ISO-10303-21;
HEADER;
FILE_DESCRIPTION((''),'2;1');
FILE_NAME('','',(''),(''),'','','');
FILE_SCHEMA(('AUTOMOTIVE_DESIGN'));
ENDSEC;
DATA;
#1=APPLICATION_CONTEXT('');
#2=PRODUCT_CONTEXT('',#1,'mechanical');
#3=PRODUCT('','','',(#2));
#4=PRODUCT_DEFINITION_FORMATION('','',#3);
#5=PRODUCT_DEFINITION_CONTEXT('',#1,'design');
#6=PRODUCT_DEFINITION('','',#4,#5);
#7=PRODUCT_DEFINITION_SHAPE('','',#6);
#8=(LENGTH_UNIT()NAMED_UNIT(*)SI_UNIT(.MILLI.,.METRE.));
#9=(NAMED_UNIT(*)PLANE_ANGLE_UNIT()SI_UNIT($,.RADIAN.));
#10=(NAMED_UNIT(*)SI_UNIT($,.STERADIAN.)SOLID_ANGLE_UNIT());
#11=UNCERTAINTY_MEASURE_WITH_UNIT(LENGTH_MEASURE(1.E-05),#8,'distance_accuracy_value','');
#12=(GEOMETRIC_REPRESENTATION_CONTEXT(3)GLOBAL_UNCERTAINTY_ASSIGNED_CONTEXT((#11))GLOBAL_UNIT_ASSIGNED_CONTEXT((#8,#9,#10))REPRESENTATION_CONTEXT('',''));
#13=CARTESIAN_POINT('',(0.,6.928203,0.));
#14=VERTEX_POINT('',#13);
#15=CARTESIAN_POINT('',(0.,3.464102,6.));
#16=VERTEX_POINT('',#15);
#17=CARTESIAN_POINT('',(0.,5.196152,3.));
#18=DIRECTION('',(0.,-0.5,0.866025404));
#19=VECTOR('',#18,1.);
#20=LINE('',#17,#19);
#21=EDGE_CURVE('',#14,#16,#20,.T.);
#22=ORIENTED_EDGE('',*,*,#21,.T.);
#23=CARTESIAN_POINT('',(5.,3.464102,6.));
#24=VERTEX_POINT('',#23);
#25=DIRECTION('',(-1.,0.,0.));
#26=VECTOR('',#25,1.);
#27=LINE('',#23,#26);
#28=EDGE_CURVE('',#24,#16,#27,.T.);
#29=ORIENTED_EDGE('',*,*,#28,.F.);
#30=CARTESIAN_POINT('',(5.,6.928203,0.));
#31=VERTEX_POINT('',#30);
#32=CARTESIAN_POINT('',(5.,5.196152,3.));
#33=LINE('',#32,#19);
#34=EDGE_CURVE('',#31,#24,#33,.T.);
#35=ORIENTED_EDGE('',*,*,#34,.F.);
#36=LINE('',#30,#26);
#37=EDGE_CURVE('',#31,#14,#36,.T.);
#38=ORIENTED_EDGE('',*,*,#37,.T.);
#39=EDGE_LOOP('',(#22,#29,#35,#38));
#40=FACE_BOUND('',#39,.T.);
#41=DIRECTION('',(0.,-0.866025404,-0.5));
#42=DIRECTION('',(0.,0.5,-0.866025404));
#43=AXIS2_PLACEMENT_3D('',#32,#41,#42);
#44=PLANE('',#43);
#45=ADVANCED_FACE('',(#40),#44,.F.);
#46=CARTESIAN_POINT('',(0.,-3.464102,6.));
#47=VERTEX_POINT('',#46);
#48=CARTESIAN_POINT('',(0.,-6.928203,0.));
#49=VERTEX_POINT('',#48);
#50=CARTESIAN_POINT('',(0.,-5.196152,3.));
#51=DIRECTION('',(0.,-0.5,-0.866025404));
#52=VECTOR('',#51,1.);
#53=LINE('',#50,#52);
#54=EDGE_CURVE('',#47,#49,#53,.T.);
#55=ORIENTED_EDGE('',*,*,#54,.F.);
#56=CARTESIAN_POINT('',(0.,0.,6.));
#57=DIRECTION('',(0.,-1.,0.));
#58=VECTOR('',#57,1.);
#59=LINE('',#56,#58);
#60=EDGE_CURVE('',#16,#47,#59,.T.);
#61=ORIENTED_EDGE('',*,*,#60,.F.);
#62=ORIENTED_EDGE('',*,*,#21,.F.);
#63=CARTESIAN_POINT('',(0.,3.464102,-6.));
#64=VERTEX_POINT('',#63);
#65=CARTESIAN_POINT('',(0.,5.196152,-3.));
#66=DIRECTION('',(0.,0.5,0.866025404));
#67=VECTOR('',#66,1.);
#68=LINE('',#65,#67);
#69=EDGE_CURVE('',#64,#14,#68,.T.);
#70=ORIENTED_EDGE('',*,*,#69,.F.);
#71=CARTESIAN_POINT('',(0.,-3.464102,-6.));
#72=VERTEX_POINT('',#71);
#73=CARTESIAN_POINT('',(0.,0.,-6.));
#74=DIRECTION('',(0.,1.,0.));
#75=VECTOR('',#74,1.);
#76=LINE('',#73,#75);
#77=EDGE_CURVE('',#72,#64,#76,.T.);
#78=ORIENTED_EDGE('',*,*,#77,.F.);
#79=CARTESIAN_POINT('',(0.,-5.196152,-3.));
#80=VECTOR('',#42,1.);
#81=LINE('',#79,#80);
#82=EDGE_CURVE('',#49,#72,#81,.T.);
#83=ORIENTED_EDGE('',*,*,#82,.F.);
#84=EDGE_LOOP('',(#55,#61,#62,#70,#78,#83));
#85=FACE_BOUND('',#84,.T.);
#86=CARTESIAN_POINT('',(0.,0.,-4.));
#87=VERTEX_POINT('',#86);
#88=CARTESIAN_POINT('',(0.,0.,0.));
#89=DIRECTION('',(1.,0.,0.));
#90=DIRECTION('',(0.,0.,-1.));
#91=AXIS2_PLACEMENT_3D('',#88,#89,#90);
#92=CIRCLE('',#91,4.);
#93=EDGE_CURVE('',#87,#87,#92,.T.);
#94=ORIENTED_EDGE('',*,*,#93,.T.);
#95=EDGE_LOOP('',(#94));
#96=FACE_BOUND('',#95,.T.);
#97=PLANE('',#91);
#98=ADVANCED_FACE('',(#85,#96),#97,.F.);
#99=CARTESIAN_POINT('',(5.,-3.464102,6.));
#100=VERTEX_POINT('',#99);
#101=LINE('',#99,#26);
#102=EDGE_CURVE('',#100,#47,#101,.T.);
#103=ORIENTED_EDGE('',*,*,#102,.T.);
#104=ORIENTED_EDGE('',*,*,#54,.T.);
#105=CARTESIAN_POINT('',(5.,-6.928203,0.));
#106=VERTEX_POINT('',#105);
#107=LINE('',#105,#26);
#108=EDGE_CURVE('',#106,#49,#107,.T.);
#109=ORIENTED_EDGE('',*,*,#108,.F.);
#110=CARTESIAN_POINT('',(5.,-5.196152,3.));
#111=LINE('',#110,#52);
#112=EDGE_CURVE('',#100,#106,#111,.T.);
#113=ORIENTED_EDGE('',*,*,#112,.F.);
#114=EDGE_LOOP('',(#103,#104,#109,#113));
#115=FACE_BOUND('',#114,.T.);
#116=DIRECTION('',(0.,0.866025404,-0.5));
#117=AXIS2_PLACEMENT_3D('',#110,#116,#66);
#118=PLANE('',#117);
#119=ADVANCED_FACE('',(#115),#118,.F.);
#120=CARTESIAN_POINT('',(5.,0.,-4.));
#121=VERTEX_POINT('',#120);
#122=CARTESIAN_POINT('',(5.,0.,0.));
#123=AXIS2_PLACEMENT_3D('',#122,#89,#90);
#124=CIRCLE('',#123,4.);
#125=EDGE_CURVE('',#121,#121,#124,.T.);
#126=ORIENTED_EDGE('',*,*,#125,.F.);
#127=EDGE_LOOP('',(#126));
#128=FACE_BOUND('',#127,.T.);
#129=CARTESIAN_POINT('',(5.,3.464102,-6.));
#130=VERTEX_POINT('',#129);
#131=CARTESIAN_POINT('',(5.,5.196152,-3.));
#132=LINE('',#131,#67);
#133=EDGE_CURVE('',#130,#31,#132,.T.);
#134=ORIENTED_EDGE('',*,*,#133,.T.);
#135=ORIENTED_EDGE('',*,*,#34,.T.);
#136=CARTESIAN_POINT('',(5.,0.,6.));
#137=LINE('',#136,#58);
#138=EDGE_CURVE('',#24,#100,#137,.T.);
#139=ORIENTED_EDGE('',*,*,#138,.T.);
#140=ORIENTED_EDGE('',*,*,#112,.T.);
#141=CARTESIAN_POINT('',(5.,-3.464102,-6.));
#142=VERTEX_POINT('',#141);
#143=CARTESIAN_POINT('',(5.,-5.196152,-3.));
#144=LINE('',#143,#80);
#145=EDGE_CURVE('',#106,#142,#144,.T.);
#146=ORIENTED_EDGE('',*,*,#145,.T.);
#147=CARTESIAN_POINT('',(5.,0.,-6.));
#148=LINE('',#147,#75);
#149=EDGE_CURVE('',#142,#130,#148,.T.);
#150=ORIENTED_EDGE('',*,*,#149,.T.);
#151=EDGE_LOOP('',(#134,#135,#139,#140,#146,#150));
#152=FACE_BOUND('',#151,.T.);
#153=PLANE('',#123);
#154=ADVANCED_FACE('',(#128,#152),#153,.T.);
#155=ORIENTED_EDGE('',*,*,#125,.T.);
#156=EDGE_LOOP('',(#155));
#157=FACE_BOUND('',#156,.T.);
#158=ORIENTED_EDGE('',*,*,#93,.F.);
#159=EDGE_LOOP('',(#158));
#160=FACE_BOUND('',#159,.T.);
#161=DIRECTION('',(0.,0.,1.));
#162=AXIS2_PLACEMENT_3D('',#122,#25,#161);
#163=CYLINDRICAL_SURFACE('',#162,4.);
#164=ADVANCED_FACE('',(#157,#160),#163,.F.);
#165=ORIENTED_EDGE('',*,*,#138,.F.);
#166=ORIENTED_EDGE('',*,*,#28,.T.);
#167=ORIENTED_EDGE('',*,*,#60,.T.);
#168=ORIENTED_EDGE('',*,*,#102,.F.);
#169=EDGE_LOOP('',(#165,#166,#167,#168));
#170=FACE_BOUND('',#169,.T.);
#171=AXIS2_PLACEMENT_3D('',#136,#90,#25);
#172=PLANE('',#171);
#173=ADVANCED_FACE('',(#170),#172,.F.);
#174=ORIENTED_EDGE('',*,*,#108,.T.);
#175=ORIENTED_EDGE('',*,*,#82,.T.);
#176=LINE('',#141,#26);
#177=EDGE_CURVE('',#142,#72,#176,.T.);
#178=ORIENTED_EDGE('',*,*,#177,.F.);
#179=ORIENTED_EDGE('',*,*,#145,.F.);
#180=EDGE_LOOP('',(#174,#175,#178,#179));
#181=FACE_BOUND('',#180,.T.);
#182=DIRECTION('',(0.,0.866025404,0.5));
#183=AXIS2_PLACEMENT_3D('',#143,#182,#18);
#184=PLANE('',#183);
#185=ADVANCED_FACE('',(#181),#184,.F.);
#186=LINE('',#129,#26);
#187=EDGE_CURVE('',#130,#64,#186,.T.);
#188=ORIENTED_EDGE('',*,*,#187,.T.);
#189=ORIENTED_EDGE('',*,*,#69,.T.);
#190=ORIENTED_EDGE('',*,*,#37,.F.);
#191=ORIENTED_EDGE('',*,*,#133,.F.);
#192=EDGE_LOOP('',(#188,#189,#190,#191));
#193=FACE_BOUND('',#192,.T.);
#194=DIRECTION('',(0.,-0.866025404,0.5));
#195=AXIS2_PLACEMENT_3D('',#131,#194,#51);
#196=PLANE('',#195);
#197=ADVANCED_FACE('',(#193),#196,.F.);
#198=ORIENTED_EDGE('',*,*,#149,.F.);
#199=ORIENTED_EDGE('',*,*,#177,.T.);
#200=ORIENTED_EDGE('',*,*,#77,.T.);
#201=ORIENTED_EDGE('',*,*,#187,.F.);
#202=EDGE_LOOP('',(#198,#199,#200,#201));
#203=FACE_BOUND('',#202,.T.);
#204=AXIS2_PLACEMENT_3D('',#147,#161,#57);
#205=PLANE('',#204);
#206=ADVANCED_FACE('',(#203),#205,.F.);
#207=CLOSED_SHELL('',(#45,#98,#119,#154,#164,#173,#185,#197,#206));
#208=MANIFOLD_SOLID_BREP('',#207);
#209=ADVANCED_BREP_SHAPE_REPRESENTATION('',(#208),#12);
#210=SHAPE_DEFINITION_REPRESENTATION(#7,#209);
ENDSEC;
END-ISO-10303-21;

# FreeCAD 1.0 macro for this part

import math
import FreeCAD as App
import Part
import Sketcher
Q = App.Units.Quantity


def add_polygon(sketch, points):
    """Adds a closed chain of lines whose ends are joined by coincident constraints."""
    first, n = sketch.GeometryCount, len(points)
    for a, b in zip(points, points[1:] + points[:1]):
        sketch.addGeometry(Part.LineSegment(App.Vector(*a, 0), App.Vector(*b, 0)), False)
    for i in range(n):
        sketch.addConstraint(Sketcher.Constraint("Coincident", first + i, 2, first + (i + 1) % n, 1))

doc = App.newDocument("Part")
body = doc.addObject("PartDesign::Body", "Body")

sketch1 = body.newObject("Sketcher::SketchObject", "Sketch")
sketch1.AttachmentSupport = (doc.getObject("YZ_Plane"), [""])
sketch1.MapMode = "FlatFace"
add_polygon(sketch1, [(-3.5, -6), (3.5, -6), (6.9, 0), (3.5, 6), (-3.5, 6), (-6.9, 0)])
sketch1.addGeometry(Part.ArcOfCircle(Part.Circle(App.Vector(0, 0, 0), App.Vector(0, 0, 1), 4), math.radians(150), math.radians(210)), False)
sketch1.addGeometry(Part.ArcOfCircle(Part.Circle(App.Vector(0, 0, 0), App.Vector(0, 0, 1), 4), math.radians(90), math.radians(150)), False)
sketch1.addGeometry(Part.ArcOfCircle(Part.Circle(App.Vector(0, 0, 0), App.Vector(0, 0, 1), 4), math.radians(30), math.radians(90)), False)
sketch1.addGeometry(Part.ArcOfCircle(Part.Circle(App.Vector(0, 0, 0), App.Vector(0, 0, 1), 4), math.radians(-30), math.radians(30)), False)
sketch1.addGeometry(Part.ArcOfCircle(Part.Circle(App.Vector(0, 0, 0), App.Vector(0, 0, 1), 4), math.radians(-90), math.radians(-30)), False)
sketch1.addGeometry(Part.ArcOfCircle(Part.Circle(App.Vector(0, 0, 0), App.Vector(0, 0, 1), 4), math.radians(-150), math.radians(-90)), False)
sketch1.addConstraint([
    Sketcher.Constraint("Tangent", 6, 1, 7, 2),
    Sketcher.Constraint("Tangent", 7, 1, 8, 2),
    Sketcher.Constraint("Tangent", 8, 1, 9, 2),
    Sketcher.Constraint("Tangent", 9, 1, 10, 2),
    Sketcher.Constraint("Tangent", 10, 1, 11, 2),
    Sketcher.Constraint("Tangent", 11, 1, 6, 2),
    Sketcher.Constraint("Horizontal", 0),
    Sketcher.Constraint("Horizontal", 3),
    Sketcher.Constraint("Coincident", 6, 3, -1, 1),
    Sketcher.Constraint("Coincident", 8, 3, -1, 1),
    Sketcher.Constraint("Equal", 8, 9),
    Sketcher.Constraint("Symmetric", 0, 2, 3, 2, -1, 1),
    Sketcher.Constraint("Symmetric", 1, 2, 4, 2, -1, 1),
    Sketcher.Constraint("PointOnObject", 1, 2, -1),
    Sketcher.Constraint("PointOnObject", 7, 1, -2),
    Sketcher.Constraint("PointOnObject", 10, 1, -2),
    Sketcher.Constraint("Parallel", 2, 5),
    Sketcher.Constraint("Horizontal", 6, 1, 8, 1),
    Sketcher.Constraint("Horizontal", 9, 1, 11, 1),
    Sketcher.Constraint("Vertical", 0, 2, 2, 2),
    Sketcher.Constraint("Vertical", 5, 2, 6, 1),
    Sketcher.Constraint("Vertical", 8, 1, 9, 1),
    Sketcher.Constraint("Radius", 6, Q("4 mm")),
    Sketcher.Constraint("Angle", 1, Q("60 deg")),
    Sketcher.Constraint("DistanceY", 0, 2, -1, 1, Q("6 mm")),
    Sketcher.Constraint("DistanceY", -1, 1, 6, 1, Q("2 mm")),
])
pad1 = body.newObject("PartDesign::Pad", "Pad")
pad1.Profile = sketch1
pad1.Length = 5

doc.recompute()
